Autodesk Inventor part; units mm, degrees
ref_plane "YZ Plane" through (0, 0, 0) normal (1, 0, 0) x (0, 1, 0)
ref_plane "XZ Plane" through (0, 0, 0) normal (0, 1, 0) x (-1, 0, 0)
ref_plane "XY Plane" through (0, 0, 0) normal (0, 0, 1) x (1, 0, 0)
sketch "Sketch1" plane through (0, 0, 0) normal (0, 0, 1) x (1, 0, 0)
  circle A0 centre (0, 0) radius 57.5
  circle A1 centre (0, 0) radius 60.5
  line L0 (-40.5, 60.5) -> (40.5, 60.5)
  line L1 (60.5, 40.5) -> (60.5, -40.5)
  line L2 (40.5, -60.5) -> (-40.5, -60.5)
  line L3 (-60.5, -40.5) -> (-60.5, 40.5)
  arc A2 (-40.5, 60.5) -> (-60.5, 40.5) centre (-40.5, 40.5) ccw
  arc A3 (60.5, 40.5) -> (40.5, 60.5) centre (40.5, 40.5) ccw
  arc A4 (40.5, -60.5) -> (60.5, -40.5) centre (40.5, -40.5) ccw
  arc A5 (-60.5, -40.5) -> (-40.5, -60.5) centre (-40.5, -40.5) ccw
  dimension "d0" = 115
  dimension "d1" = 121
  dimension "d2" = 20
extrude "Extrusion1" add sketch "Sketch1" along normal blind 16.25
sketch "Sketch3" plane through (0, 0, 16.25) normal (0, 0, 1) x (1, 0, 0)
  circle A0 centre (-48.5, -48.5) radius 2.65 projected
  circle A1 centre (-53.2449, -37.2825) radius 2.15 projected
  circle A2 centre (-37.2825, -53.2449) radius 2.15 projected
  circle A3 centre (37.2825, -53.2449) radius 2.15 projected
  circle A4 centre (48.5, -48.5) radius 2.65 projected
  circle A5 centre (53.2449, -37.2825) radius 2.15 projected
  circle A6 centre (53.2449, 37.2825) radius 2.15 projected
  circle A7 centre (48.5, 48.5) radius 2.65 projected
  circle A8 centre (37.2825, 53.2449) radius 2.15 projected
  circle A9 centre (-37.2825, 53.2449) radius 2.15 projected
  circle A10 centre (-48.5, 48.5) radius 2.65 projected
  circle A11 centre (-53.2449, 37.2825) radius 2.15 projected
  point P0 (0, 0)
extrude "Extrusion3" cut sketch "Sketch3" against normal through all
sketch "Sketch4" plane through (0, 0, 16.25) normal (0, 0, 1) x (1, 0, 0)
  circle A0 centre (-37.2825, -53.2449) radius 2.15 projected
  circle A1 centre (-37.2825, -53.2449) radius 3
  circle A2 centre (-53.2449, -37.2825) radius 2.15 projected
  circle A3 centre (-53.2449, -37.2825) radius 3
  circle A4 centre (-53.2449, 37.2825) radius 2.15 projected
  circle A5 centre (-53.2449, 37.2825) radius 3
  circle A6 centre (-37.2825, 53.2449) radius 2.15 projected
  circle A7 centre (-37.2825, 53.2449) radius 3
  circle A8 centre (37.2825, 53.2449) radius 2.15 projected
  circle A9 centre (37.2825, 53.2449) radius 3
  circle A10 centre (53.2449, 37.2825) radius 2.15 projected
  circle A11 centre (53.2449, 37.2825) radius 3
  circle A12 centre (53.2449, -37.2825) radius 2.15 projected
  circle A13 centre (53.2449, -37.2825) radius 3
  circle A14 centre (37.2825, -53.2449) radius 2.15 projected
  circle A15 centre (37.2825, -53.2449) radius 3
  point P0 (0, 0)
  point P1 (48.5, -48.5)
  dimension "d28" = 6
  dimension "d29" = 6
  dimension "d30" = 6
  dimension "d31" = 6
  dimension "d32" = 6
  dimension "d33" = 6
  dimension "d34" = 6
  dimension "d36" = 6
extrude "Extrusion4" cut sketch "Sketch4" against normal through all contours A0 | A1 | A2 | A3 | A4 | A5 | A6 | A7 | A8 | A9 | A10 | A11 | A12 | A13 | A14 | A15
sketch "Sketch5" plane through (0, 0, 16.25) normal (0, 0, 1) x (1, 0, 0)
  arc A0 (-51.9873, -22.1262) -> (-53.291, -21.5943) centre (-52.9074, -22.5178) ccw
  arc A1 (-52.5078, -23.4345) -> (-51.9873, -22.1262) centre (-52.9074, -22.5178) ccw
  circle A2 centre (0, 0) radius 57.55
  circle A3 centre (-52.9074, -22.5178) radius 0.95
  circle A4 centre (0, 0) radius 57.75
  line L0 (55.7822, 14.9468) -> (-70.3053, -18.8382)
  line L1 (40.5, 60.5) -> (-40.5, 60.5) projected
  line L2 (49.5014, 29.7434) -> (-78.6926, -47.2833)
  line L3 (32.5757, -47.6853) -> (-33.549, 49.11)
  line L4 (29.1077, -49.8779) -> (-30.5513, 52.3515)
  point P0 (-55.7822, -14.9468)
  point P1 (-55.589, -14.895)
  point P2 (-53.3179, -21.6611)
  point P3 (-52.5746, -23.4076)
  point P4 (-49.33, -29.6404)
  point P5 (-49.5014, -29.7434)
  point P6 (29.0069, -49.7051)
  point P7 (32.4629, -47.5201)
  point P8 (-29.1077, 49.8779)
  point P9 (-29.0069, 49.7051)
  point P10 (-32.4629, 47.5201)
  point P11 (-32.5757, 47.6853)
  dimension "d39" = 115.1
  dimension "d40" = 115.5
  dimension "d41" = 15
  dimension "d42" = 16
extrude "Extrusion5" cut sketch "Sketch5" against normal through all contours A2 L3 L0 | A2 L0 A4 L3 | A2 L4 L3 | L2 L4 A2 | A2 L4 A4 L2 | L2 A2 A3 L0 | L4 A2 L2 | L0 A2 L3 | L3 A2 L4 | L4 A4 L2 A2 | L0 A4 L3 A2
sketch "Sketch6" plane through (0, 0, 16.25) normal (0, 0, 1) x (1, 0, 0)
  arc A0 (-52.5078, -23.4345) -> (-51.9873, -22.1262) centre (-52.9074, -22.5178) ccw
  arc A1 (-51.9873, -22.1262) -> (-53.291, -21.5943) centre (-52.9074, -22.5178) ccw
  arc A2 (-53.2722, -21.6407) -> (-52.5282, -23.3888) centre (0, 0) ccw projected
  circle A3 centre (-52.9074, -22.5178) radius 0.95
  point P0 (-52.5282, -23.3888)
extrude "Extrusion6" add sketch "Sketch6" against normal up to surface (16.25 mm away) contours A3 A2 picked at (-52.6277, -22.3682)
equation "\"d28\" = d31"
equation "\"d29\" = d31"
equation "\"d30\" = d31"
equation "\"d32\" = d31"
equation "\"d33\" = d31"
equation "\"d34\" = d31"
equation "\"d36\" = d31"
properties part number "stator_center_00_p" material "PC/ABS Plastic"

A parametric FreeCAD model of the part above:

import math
import FreeCAD as App
import Part
import Sketcher
from FreeCAD import Vector
Q = App.Units.Quantity

doc = App.newDocument("Part")
body = doc.addObject("PartDesign::Body", "Body")

# Sketch on XY plane
sketch1 = body.newObject("Sketcher::SketchObject", "Sketch")
sketch1.AttachmentSupport = (doc.getObject("XY_Plane"), [""])
sketch1.MapMode = "FlatFace"
sketch1.addGeometry([
    Part.LineSegment(Vector(60, -40, 0), Vector(60, 40, 0)),  # 0
    Part.ArcOfCircle(Part.Circle(Vector(40, 40, 0), Vector(0, 0, 1), 20), math.radians(0), math.radians(90)),  # 1
    Part.LineSegment(Vector(40, 60, 0), Vector(-40, 60, 0)),  # 2
    Part.ArcOfCircle(Part.Circle(Vector(-40, 40, 0), Vector(0, 0, 1), 20), math.radians(90), math.radians(180)),  # 3
    Part.LineSegment(Vector(-60, 40, 0), Vector(-60, -40, 0)),  # 4
    Part.ArcOfCircle(Part.Circle(Vector(-40, -40, 0), Vector(0, 0, 1), 20), math.radians(180), math.radians(270)),  # 5
    Part.LineSegment(Vector(-40, -60, 0), Vector(40, -60, 0)),  # 6
    Part.ArcOfCircle(Part.Circle(Vector(40, -40, 0), Vector(0, 0, 1), 20), math.radians(-90), math.radians(0)),  # 7
    Part.Circle(Vector(0, 0, 0), Vector(0, 0, 1), 58),  # 8
], False)
sketch1.addConstraint([
    Sketcher.Constraint("Tangent", 0, 2, 1, 1),
    Sketcher.Constraint("Tangent", 1, 2, 2, 1),
    Sketcher.Constraint("Tangent", 2, 2, 3, 1),
    Sketcher.Constraint("Tangent", 3, 2, 4, 1),
    Sketcher.Constraint("Tangent", 4, 2, 5, 1),
    Sketcher.Constraint("Tangent", 5, 2, 6, 1),
    Sketcher.Constraint("Tangent", 6, 2, 7, 1),
    Sketcher.Constraint("Tangent", 7, 2, 0, 1),
    Sketcher.Constraint("Vertical", 0),
    Sketcher.Constraint("Horizontal", 2),
    Sketcher.Constraint("Vertical", 4),
    Sketcher.Constraint("Horizontal", 6),
    Sketcher.Constraint("Coincident", 8, 3, -1, 1),
    Sketcher.Constraint("Equal", 1, 3),
    Sketcher.Constraint("Equal", 3, 5),
    Sketcher.Constraint("Equal", 5, 7),
    Sketcher.Constraint("Symmetric", 1, 3, 5, 3, -1, 1),
    Sketcher.Constraint("Equal", 6, 0),
    Sketcher.Constraint("Diameter", 8, 115.0),
    Sketcher.Constraint("Radius", 1, 20.0),
    Sketcher.Constraint("DistanceX", 2, 2, 2, 1, 81.0),
])
pad1 = body.newObject("PartDesign::Pad", "Pad")
pad1.Profile = sketch1
pad1.Length = 16.25

# Sketch on XY plane
sketch2 = body.newObject("Sketcher::SketchObject", "Sketch001")
sketch2.AttachmentSupport = (doc.getObject("XY_Plane"), [""])
sketch2.MapMode = "FlatFace"
sketch2.AttachmentOffset = App.Placement(Vector(0, 0, 16.25), App.Rotation())
sketch2.addGeometry([
    Part.Circle(Vector(-48.5, -48.5, 0), Vector(0, 0, 1), 2.6),  # 0
    Part.Circle(Vector(-53.2, -37.3, 0), Vector(0, 0, 1), 2.1),  # 1
    Part.Circle(Vector(-37.3, -53.2, 0), Vector(0, 0, 1), 2.1),  # 2
    Part.Circle(Vector(37.3, -53.2, 0), Vector(0, 0, 1), 2.1),  # 3
    Part.Circle(Vector(48.5, -48.5, 0), Vector(0, 0, 1), 2.6),  # 4
    Part.Circle(Vector(53.2, -37.3, 0), Vector(0, 0, 1), 2.1),  # 5
    Part.Circle(Vector(53.2, 37.3, 0), Vector(0, 0, 1), 2.1),  # 6
    Part.Circle(Vector(48.5, 48.5, 0), Vector(0, 0, 1), 2.6),  # 7
    Part.Circle(Vector(37.3, 53.2, 0), Vector(0, 0, 1), 2.1),  # 8
    Part.Circle(Vector(-37.3, 53.2, 0), Vector(0, 0, 1), 2.1),  # 9
    Part.Circle(Vector(-48.5, 48.5, 0), Vector(0, 0, 1), 2.6),  # 10
    Part.Circle(Vector(-53.2, 37.3, 0), Vector(0, 0, 1), 2.1),  # 11
], False)
sketch2.addConstraint([
    Sketcher.Constraint("Equal", 1, 2),
    Sketcher.Constraint("Equal", 2, 3),
    Sketcher.Constraint("Equal", 0, 4),
    Sketcher.Constraint("Equal", 3, 5),
    Sketcher.Constraint("Equal", 5, 6),
    Sketcher.Constraint("Equal", 4, 7),
    Sketcher.Constraint("Equal", 6, 8),
    Sketcher.Constraint("Equal", 8, 9),
    Sketcher.Constraint("Equal", 7, 10),
    Sketcher.Constraint("Equal", 9, 11),
    Sketcher.Constraint("Symmetric", 1, 3, 6, 3, -1, 1),
    Sketcher.Constraint("Symmetric", 0, 3, 7, 3, -1, 1),
    Sketcher.Constraint("Symmetric", 2, 3, 8, 3, -1, 1),
    Sketcher.Constraint("Symmetric", 3, 3, 9, 3, -1, 1),
    Sketcher.Constraint("Symmetric", 4, 3, 10, 3, -1, 1),
    Sketcher.Constraint("Symmetric", 5, 3, 11, 3, -1, 1),
    Sketcher.Constraint("Symmetric", 2, 3, 3, 3, -2),
    Sketcher.Constraint("Symmetric", 0, 3, 4, 3, -2),
    Sketcher.Constraint("Symmetric", 1, 3, 5, 3, -2),
    Sketcher.Constraint("Diameter", 0, 5.3),
    Sketcher.Constraint("Diameter", 1, 4.3),
    Sketcher.Constraint("DistanceX", 0, 3, 4, 3, 97.0),
    Sketcher.Constraint("DistanceY", 4, 3, 7, 3, 97.0),
    Sketcher.Constraint("DistanceX", 1, 3, -1, 1, 53.245),
    Sketcher.Constraint("DistanceY", 2, 3, -1, 1, 53.245),
    Sketcher.Constraint("DistanceX", 2, 3, 3, 3, 74.565),
    Sketcher.Constraint("DistanceY", 5, 3, 6, 3, 74.565),
])
pocket1 = body.newObject("PartDesign::Pocket", "Pocket")
pocket1.Profile = sketch2
pocket1.Type = "ThroughAll"

# Sketch on XY plane
sketch3 = body.newObject("Sketcher::SketchObject", "Sketch002")
sketch3.AttachmentSupport = (doc.getObject("XY_Plane"), [""])
sketch3.MapMode = "FlatFace"
sketch3.AttachmentOffset = App.Placement(Vector(0, 0, 16.25), App.Rotation())
sketch3.addGeometry([
    Part.Circle(Vector(-37.3, -53.2, 0), Vector(0, 0, 1), 3),  # 0
    Part.Circle(Vector(-53.2, -37.3, 0), Vector(0, 0, 1), 3),  # 1
    Part.Circle(Vector(-53.2, 37.3, 0), Vector(0, 0, 1), 3),  # 2
    Part.Circle(Vector(-37.3, 53.2, 0), Vector(0, 0, 1), 3),  # 3
    Part.Circle(Vector(37.3, 53.2, 0), Vector(0, 0, 1), 3),  # 4
    Part.Circle(Vector(53.2, 37.3, 0), Vector(0, 0, 1), 3),  # 5
    Part.Circle(Vector(53.2, -37.3, 0), Vector(0, 0, 1), 3),  # 6
    Part.Circle(Vector(37.3, -53.2, 0), Vector(0, 0, 1), 3),  # 7
], False)
sketch3.addConstraint([
    Sketcher.Constraint("Equal", 0, 1),
    Sketcher.Constraint("Equal", 1, 2),
    Sketcher.Constraint("Equal", 2, 3),
    Sketcher.Constraint("Equal", 3, 4),
    Sketcher.Constraint("Equal", 4, 5),
    Sketcher.Constraint("Equal", 5, 6),
    Sketcher.Constraint("Equal", 6, 7),
    Sketcher.Constraint("Symmetric", 0, 3, 4, 3, -1, 1),
    Sketcher.Constraint("Symmetric", 1, 3, 5, 3, -1, 1),
    Sketcher.Constraint("Symmetric", 2, 3, 6, 3, -1, 1),
    Sketcher.Constraint("Symmetric", 3, 3, 7, 3, -1, 1),
    Sketcher.Constraint("Symmetric", 3, 3, 4, 3, -2),
    Sketcher.Constraint("Symmetric", 2, 3, 5, 3, -2),
    Sketcher.Constraint("Diameter", 0, 6.0),
    Sketcher.Constraint("DistanceY", 0, 3, -1, 1, 53.245),
    Sketcher.Constraint("DistanceX", 1, 3, -1, 1, 53.245),
    Sketcher.Constraint("DistanceY", 1, 3, 2, 3, 74.565),
    Sketcher.Constraint("DistanceX", 3, 3, 4, 3, 74.565),
])
pocket2 = body.newObject("PartDesign::Pocket", "Pocket001")
pocket2.Profile = sketch3
pocket2.Type = "ThroughAll"

# Sketch on XY plane
sketch4 = body.newObject("Sketcher::SketchObject", "Sketch003")
sketch4.AttachmentSupport = (doc.getObject("XY_Plane"), [""])
sketch4.MapMode = "FlatFace"
sketch4.AttachmentOffset = App.Placement(Vector(0, 0, 16.25), App.Rotation())
sketch4.addGeometry([
    Part.LineSegment(Vector(0, 0, 0), Vector(49.5, 29.74, 0)),  # 0
    Part.ArcOfCircle(Part.Circle(Vector(0, 0, 0), Vector(0, 0, 1), 57.75), math.radians(31), math.radians(120)),  # 1
    Part.LineSegment(Vector(-29.11, 49.88, 0), Vector(-29.01, 49.71, 0)),  # 2
    Part.ArcOfCircle(Part.Circle(Vector(0, 0, 0), Vector(0, 0, 1), 57.55), math.radians(120.27), math.radians(124.34)),  # 3
    Part.LineSegment(Vector(-32.46, 47.52, 0), Vector(-32.58, 47.69, 0)),  # 4
    Part.ArcOfCircle(Part.Circle(Vector(0, 0, 0), Vector(0, 0, 1), 57.75), math.radians(124), math.radians(195)),  # 5
    Part.LineSegment(Vector(-55.78, -14.95, 0), Vector(-55.59, -14.89, 0)),  # 6
    Part.ArcOfCircle(Part.Circle(Vector(0, 0, 0), Vector(0, 0, 1), 57.55), math.radians(-165), math.radians(-157.89)),  # 7
    Part.ArcOfCircle(Part.Circle(Vector(-52.91, -22.52, 0), Vector(0, 0, 1), 0.95), math.radians(-69), math.radians(116)),  # 8
    Part.ArcOfCircle(Part.Circle(Vector(0, 0, 0), Vector(0, 0, 1), 57.55), math.radians(-156), math.radians(-149)),  # 9
    Part.LineSegment(Vector(-49.33, -29.64, 0), Vector(-49.5, -29.74, 0)),  # 10
    Part.ArcOfCircle(Part.Circle(Vector(0, 0, 0), Vector(0, 0, 1), 57.75), math.radians(-149), math.radians(-60)),  # 11
    Part.LineSegment(Vector(29.11, -49.88, 0), Vector(29.01, -49.71, 0)),  # 12
    Part.ArcOfCircle(Part.Circle(Vector(0, 0, 0), Vector(0, 0, 1), 57.55), math.radians(-59.73), math.radians(-55.66)),  # 13
    Part.LineSegment(Vector(32.46, -47.52, 0), Vector(32.58, -47.69, 0)),  # 14
    Part.ArcOfCircle(Part.Circle(Vector(0, 0, 0), Vector(0, 0, 1), 57.75), math.radians(-56), math.radians(15)),  # 15
    Part.LineSegment(Vector(55.78, 14.95, 0), Vector(0, 0, 0)),  # 16
], False)
sketch4.addConstraint([
    Sketcher.Constraint("Coincident", 0, 2, 1, 1),
    Sketcher.Constraint("Coincident", 1, 2, 2, 1),
    Sketcher.Constraint("Coincident", 2, 2, 3, 1),
    Sketcher.Constraint("Coincident", 3, 2, 4, 1),
    Sketcher.Constraint("Coincident", 4, 2, 5, 1),
    Sketcher.Constraint("Coincident", 5, 2, 6, 1),
    Sketcher.Constraint("Coincident", 6, 2, 7, 1),
    Sketcher.Constraint("Coincident", 7, 2, 8, 2),
    Sketcher.Constraint("Coincident", 8, 1, 9, 1),
    Sketcher.Constraint("Coincident", 9, 2, 10, 1),
    Sketcher.Constraint("Coincident", 10, 2, 11, 1),
    Sketcher.Constraint("Coincident", 11, 2, 12, 1),
    Sketcher.Constraint("Coincident", 12, 2, 13, 1),
    Sketcher.Constraint("Coincident", 13, 2, 14, 1),
    Sketcher.Constraint("Coincident", 14, 2, 15, 1),
    Sketcher.Constraint("Coincident", 15, 2, 16, 1),
    Sketcher.Constraint("Coincident", 16, 2, 0, 1),
    Sketcher.Constraint("Coincident", 1, 3, -1, 1),
    Sketcher.Constraint("Coincident", 3, 3, -1, 1),
    Sketcher.Constraint("Coincident", 5, 3, -1, 1),
    Sketcher.Constraint("Coincident", 7, 3, -1, 1),
    Sketcher.Constraint("Coincident", 9, 3, -1, 1),
    Sketcher.Constraint("Coincident", 11, 3, -1, 1),
    Sketcher.Constraint("Coincident", 13, 3, -1, 1),
    Sketcher.Constraint("Coincident", 15, 3, -1, 1),
    Sketcher.Constraint("Coincident", 16, 2, -1, 1),
    Sketcher.Constraint("Equal", 1, 5),
    Sketcher.Constraint("Equal", 3, 7),
    Sketcher.Constraint("Equal", 7, 9),
    Sketcher.Constraint("Equal", 5, 11),
    Sketcher.Constraint("Equal", 9, 13),
    Sketcher.Constraint("Equal", 11, 15),
    Sketcher.Constraint("Parallel", 0, 10),
    Sketcher.Constraint("Parallel", 2, 12),
    Sketcher.Constraint("Parallel", 4, 14),
    Sketcher.Constraint("Parallel", 6, 16),
    Sketcher.Constraint("Angle", 6, Q("15 deg")),
    Sketcher.Constraint("Radius", 1, 57.75),
    Sketcher.Constraint("Radius", 3, 57.55),
    Sketcher.Constraint("Angle", 0, Q("31 deg")),
    Sketcher.Constraint("Radius", 8, 0.95),
    Sketcher.Constraint("DistanceX", 9, 2, -1, 1, 49.33),
    Sketcher.Constraint("DistanceX", 2, 2, -1, 1, 29.007),
    Sketcher.Constraint("DistanceX", 3, 2, -1, 1, 32.463),
    Sketcher.Constraint("DistanceX", 6, 2, -1, 1, 55.589),
    Sketcher.Constraint("DistanceX", 7, 2, -1, 1, 53.318),
    Sketcher.Constraint("DistanceY", 11, 2, -1, 1, 49.878),
    Sketcher.Constraint("DistanceX", -1, 1, 12, 2, 29.007),
    Sketcher.Constraint("DistanceX", 4, 2, 1, 2, 3.468),
    Sketcher.Constraint("DistanceY", 8, 3, 5, 2, 7.571),
    Sketcher.Constraint("DistanceX", 12, 2, 13, 2, 3.456),
])
pocket3 = body.newObject("PartDesign::Pocket", "Pocket002")
pocket3.Profile = sketch4
pocket3.Type = "ThroughAll"

# Sketch on XY plane
sketch5 = body.newObject("Sketcher::SketchObject", "Sketch004")
sketch5.AttachmentSupport = (doc.getObject("XY_Plane"), [""])
sketch5.MapMode = "FlatFace"
sketch5.AttachmentOffset = App.Placement(Vector(0, 0, 16.25), App.Rotation())
sketch5.addGeometry([
    Part.ArcOfCircle(Part.Circle(Vector(-52.9, -22.5, 0), Vector(0, 0, 1), 0.9), math.radians(-66), math.radians(113)),
    Part.ArcOfCircle(Part.Circle(Vector(0, 0, 0), Vector(0, 0, 1), 57.5), math.radians(-157.89), math.radians(-156)),
], False)
sketch5.addConstraint([
    Sketcher.Constraint("Coincident", 0, 1, 1, 2),
    Sketcher.Constraint("Coincident", 1, 1, 0, 2),
    Sketcher.Constraint("Radius", 0, 0.95),
    Sketcher.Constraint("Radius", 1, 57.5182),
    Sketcher.Constraint("DistanceY", -1, 1, 1, 3, 0.007),
    Sketcher.Constraint("DistanceY", 0, 1, 0, 3, 0.871),
    Sketcher.Constraint("DistanceX", 0, 1, 1, 3, 52.545),
    Sketcher.Constraint("DistanceX", 0, 3, -1, 1, 52.9074),
])
pad2 = body.newObject("PartDesign::Pad", "Pad001")
pad2.Profile = sketch5
pad2.Length = 16.25
pad2.Reversed = True

doc.recompute()
